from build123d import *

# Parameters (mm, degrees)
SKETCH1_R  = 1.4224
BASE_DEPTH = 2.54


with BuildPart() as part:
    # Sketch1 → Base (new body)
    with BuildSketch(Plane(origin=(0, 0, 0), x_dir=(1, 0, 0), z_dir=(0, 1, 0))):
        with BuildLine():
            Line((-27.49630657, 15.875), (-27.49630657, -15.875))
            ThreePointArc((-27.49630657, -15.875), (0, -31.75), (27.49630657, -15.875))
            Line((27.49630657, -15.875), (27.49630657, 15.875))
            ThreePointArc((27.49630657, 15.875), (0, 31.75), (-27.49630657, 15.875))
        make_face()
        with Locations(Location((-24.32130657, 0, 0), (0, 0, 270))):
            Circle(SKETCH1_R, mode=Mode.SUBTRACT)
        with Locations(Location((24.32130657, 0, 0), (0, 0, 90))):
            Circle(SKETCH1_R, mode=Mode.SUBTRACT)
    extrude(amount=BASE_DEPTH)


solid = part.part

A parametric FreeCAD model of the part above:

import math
import FreeCAD as App
import Part
import Sketcher
Q = App.Units.Quantity

doc = App.newDocument("Part")
params = doc.addObject("Spreadsheet::Sheet", "Params")
for row, (alias, value) in enumerate([
    ("sketch1_radius", "1.25 in"),
    ("sketch1_diameter", "0.112 in"),
    ("sketch1_height", "1.25 in"),
    ("pad1_length", "0.1 in"),
], start=1):
    params.set(f"A{row}", alias)
    params.set(f"B{row}", "=" + value)
    params.setAlias(f"B{row}", alias)

body = doc.addObject("PartDesign::Body", "Body")

sketch1 = body.newObject("Sketcher::SketchObject", "Sketch")
sketch1.AttachmentSupport = (doc.getObject("XZ_Plane"), [""])
sketch1.MapMode = "FlatFace"
sketch1.addGeometry(Part.LineSegment(App.Vector(-27.496307, -15.875, 0), App.Vector(-27.496307, 15.875, 0)), False)
sketch1.addGeometry(Part.ArcOfCircle(Part.Circle(App.Vector(0, 0, 0), App.Vector(0, 0, 1), 31.75), math.radians(30), math.radians(150)), False)
sketch1.addGeometry(Part.LineSegment(App.Vector(27.496307, 15.875, 0), App.Vector(27.496307, -15.875, 0)), False)
sketch1.addGeometry(Part.ArcOfCircle(Part.Circle(App.Vector(0, 0, 0), App.Vector(0, 0, 1), 31.75), math.radians(-150), math.radians(-30)), False)
sketch1.addGeometry(Part.Circle(App.Vector(-24.321307, 0, 0), App.Vector(0, 0, 1), 1.4224), False)
sketch1.addGeometry(Part.Circle(App.Vector(24.321307, 0, 0), App.Vector(0, 0, 1), 1.4224), False)
sketch1.addConstraint(Sketcher.Constraint("Coincident", 0, 2, 1, 2))
sketch1.addConstraint(Sketcher.Constraint("Coincident", 1, 1, 2, 1))
sketch1.addConstraint(Sketcher.Constraint("Coincident", 2, 2, 3, 2))
sketch1.addConstraint(Sketcher.Constraint("Coincident", 3, 1, 0, 1))
sketch1.addConstraint(Sketcher.Constraint("Vertical", 0))
sketch1.addConstraint(Sketcher.Constraint("Vertical", 2))
sketch1.addConstraint(Sketcher.Constraint("Coincident", 1, 3, -1, 1))
sketch1.addConstraint(Sketcher.Constraint("Coincident", 3, 3, -1, 1))
sketch1.addConstraint(Sketcher.Constraint("Equal", 1, 3))
sketch1.addConstraint(Sketcher.Constraint("Equal", 4, 5))
sketch1.addConstraint(Sketcher.Constraint("Symmetric", 4, 3, 5, 3, -1, 1))
sketch1.addConstraint(Sketcher.Constraint("PointOnObject", 4, 3, -1))
sketch1.addConstraint(Sketcher.Constraint("Horizontal", 0, 2, 1, 1))
sketch1.addConstraint(Sketcher.Constraint("Radius", 1, Q("1.25 in")))
sketch1.addConstraint(Sketcher.Constraint("Diameter", 4, Q("0.112 in")))
sketch1.addConstraint(Sketcher.Constraint("DistanceY", 0, 1, 0, 2, Q("1.25 in")))
sketch1.addConstraint(Sketcher.Constraint("DistanceX", 0, 2, 4, 3, Q("0.125 in")))
sketch1.setExpression("Constraints[13]", "Params.sketch1_radius")
sketch1.setExpression("Constraints[14]", "Params.sketch1_diameter")
sketch1.setExpression("Constraints[15]", "Params.sketch1_height")
pad1 = body.newObject("PartDesign::Pad", "Pad")
pad1.Profile = sketch1
pad1.setExpression("Length", "Params.pad1_length")
pad1.Reversed = True

doc.recompute()
